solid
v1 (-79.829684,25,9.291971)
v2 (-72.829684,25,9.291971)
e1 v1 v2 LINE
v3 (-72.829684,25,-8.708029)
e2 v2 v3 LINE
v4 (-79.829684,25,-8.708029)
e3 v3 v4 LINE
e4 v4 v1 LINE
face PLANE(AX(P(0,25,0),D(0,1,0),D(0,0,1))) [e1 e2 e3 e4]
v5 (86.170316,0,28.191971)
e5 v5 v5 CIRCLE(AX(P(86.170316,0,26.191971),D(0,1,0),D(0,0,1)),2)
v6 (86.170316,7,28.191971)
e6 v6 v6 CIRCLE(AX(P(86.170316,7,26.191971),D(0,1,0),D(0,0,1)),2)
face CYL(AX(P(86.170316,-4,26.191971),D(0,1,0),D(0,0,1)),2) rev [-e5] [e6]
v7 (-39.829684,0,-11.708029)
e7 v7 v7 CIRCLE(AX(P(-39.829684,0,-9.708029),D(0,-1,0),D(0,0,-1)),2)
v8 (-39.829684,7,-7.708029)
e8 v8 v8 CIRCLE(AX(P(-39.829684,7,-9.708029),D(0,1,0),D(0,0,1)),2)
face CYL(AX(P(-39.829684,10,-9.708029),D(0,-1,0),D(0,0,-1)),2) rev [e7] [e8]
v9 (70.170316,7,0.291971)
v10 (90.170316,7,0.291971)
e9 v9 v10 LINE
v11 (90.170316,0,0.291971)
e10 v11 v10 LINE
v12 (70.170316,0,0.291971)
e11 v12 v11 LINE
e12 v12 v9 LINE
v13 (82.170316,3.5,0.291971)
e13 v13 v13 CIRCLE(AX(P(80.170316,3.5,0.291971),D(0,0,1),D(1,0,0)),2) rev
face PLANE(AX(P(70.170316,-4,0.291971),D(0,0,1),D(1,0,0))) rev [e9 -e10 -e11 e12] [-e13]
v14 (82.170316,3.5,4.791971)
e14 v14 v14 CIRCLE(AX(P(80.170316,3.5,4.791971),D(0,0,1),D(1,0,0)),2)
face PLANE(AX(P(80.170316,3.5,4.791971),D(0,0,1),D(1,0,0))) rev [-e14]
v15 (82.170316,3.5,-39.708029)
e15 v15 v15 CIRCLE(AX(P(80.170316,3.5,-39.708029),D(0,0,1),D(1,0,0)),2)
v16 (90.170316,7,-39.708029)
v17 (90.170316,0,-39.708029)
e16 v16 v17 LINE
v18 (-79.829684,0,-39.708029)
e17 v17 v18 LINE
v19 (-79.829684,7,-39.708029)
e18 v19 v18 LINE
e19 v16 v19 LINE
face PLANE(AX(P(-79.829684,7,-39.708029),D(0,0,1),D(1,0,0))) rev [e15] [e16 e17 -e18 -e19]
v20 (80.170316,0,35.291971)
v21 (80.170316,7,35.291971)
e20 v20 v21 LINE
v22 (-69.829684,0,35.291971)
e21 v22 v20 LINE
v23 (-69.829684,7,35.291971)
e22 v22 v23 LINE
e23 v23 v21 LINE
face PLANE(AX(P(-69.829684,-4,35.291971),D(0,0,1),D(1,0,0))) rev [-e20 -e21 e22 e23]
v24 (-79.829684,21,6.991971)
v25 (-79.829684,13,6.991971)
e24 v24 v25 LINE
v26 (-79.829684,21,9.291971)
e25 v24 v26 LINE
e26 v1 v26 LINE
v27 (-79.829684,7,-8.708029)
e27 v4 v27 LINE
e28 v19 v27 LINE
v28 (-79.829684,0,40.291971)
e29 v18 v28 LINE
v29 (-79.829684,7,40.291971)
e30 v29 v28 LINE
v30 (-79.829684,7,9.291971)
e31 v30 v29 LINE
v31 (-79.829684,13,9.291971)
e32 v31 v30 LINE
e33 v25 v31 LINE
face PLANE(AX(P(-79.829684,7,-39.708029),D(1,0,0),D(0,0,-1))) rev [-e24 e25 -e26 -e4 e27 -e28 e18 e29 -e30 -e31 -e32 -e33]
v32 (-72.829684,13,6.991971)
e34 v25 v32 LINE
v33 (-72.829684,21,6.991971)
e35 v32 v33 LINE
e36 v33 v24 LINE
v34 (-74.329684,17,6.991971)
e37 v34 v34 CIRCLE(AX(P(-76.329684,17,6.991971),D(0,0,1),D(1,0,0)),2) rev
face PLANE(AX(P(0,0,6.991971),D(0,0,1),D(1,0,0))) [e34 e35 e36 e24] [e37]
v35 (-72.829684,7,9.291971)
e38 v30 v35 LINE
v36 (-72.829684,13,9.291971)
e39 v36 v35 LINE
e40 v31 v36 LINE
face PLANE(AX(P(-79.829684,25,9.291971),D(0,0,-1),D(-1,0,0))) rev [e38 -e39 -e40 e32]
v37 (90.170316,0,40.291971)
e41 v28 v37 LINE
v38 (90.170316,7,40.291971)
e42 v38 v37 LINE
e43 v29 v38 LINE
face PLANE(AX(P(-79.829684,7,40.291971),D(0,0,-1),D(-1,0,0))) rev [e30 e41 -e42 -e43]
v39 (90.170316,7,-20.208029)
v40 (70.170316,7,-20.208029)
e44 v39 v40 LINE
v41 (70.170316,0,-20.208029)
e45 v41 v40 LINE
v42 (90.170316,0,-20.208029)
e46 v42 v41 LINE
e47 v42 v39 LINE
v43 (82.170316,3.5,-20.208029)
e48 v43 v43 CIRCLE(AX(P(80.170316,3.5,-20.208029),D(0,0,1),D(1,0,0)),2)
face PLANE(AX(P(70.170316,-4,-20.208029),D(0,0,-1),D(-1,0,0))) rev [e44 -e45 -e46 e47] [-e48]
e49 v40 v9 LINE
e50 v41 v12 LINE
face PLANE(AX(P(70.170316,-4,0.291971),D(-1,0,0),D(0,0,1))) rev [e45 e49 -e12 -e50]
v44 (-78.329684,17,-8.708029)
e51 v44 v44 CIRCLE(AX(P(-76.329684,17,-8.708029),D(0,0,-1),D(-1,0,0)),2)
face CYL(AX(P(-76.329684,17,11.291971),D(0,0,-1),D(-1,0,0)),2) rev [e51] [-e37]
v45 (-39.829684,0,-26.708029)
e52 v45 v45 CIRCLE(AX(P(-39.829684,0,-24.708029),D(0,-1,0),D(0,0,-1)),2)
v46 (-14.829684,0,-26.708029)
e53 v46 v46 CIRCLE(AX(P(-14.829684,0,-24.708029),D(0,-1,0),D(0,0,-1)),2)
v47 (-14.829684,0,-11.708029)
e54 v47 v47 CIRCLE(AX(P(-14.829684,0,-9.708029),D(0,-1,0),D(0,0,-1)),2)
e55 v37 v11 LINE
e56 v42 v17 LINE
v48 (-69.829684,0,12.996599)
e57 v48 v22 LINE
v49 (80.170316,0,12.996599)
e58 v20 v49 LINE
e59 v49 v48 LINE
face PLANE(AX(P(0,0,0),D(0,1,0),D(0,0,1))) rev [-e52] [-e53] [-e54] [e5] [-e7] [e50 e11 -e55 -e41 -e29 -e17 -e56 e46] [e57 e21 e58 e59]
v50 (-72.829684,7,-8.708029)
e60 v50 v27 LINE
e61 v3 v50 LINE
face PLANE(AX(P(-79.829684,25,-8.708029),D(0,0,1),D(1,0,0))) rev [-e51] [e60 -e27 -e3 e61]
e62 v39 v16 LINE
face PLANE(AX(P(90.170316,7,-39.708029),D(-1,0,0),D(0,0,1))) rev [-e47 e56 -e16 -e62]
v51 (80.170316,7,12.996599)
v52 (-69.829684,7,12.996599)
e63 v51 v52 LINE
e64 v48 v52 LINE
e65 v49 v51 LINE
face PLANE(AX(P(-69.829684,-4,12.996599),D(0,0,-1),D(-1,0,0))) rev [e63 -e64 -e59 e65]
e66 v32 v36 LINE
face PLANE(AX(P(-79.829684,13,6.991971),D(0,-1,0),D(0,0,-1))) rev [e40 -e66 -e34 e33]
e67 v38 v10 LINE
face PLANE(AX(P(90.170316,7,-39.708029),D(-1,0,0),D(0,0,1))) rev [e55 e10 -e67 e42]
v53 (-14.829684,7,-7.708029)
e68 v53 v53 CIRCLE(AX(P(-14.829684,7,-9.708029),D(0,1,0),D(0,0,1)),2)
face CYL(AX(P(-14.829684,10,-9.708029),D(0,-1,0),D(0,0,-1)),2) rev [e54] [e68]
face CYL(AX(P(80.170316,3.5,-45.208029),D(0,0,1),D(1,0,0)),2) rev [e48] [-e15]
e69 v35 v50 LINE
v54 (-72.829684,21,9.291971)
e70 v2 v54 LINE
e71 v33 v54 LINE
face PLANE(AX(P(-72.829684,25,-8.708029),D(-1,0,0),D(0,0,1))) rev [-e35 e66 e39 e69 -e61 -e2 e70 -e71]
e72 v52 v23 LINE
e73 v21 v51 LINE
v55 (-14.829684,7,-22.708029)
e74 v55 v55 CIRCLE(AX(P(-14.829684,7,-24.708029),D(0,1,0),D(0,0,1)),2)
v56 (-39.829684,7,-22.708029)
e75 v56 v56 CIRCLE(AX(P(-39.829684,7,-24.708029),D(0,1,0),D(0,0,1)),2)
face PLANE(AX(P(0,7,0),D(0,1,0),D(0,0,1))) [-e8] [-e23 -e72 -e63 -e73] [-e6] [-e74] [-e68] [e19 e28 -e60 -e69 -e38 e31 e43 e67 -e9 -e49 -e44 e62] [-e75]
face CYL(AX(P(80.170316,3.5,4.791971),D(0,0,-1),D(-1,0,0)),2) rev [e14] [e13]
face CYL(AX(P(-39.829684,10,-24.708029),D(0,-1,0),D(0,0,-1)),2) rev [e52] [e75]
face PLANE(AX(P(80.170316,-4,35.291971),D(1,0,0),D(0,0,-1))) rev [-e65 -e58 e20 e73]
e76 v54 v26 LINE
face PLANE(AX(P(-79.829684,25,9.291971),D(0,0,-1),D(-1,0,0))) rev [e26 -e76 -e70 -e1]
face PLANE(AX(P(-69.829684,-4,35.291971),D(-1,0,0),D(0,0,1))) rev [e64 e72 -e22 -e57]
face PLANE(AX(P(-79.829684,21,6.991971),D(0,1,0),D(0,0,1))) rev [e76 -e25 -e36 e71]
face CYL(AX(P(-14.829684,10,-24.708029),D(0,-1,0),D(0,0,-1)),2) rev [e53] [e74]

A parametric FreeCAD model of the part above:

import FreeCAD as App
import Part
import Sketcher

V = App.Vector

doc = App.newDocument("Part")
body = doc.addObject("PartDesign::Body", "Body")

sketch1 = body.newObject("Sketcher::SketchObject", "Sketch")
sketch1.AttachmentSupport = (doc.getObject("XZ_Plane"), [""])
sketch1.MapMode = "FlatFace"
sketch1.addGeometry([
    Part.LineSegment(V(-80, -40, 0), V(-80, 40, 0)),
    Part.LineSegment(V(-80, 40, 0), V(90, 40, 0)),
    Part.LineSegment(V(90, 40, 0), V(90, -40, 0)),
    Part.LineSegment(V(90, -40, 0), V(-80, -40, 0)),
], False)
sketch1.addConstraint([
    Sketcher.Constraint("Coincident", 0, 2, 1, 1),
    Sketcher.Constraint("Coincident", 1, 2, 2, 1),
    Sketcher.Constraint("Coincident", 2, 2, 3, 1),
    Sketcher.Constraint("Coincident", 3, 2, 0, 1),
    Sketcher.Constraint("Vertical", 0),
    Sketcher.Constraint("Horizontal", 1),
    Sketcher.Constraint("Vertical", 2),
    Sketcher.Constraint("Horizontal", 3),
    Sketcher.Constraint("DistanceX", 1, 1, 1, 2, 170.0),
    Sketcher.Constraint("DistanceY", 0, 1, 0, 2, 80.0),
    Sketcher.Constraint("DistanceY", -1, 1, 0, 2, 40.291971),
    Sketcher.Constraint("DistanceX", 0, 2, -1, 1, 79.829684),
])
pad1 = body.newObject("PartDesign::Pad", "Pad")
pad1.Profile = sketch1
pad1.Length = 7
pad1.Reversed = True

sketch2 = body.newObject("Sketcher::SketchObject", "Sketch001")
sketch2.AttachmentSupport = (doc.getObject("XZ_Plane"), [""])
sketch2.MapMode = "FlatFace"
sketch2.AttachmentOffset = App.Placement(V(0, 0, -7), App.Rotation())
sketch2.addGeometry([
    Part.LineSegment(V(-80, -9, 0), V(-80, 9, 0)),
    Part.LineSegment(V(-80, 9, 0), V(-73, 9, 0)),
    Part.LineSegment(V(-73, 9, 0), V(-73, -9, 0)),
    Part.LineSegment(V(-73, -9, 0), V(-80, -9, 0)),
], False)
sketch2.addConstraint([
    Sketcher.Constraint("Coincident", 0, 2, 1, 1),
    Sketcher.Constraint("Coincident", 1, 2, 2, 1),
    Sketcher.Constraint("Coincident", 2, 2, 3, 1),
    Sketcher.Constraint("Coincident", 3, 2, 0, 1),
    Sketcher.Constraint("Vertical", 0),
    Sketcher.Constraint("Horizontal", 1),
    Sketcher.Constraint("Vertical", 2),
    Sketcher.Constraint("Horizontal", 3),
    Sketcher.Constraint("DistanceX", 1, 1, 1, 2, 7.0),
    Sketcher.Constraint("DistanceY", 0, 1, 0, 2, 18.0),
    Sketcher.Constraint("DistanceY", -1, 1, 0, 2, 9.291971),
    Sketcher.Constraint("DistanceX", 0, 2, -1, 1, 79.829684),
])
pad2 = body.newObject("PartDesign::Pad", "Pad001")
pad2.Profile = sketch2
pad2.Length = 18
pad2.Reversed = True

sketch3 = body.newObject("Sketcher::SketchObject", "Sketch002")
sketch3.AttachmentSupport = (doc.getObject("XY_Plane"), [""])
sketch3.MapMode = "FlatFace"
sketch3.AttachmentOffset = App.Placement(V(0, 0, -8.708029), App.Rotation())
sketch3.addGeometry(Part.Circle(V(-76.3, 17, 0), V(0, 0, 1), 2), False)
sketch3.addConstraint([
    Sketcher.Constraint("Diameter", 0, 4.0),
    Sketcher.Constraint("DistanceY", -1, 1, 0, 3, 17.0),
    Sketcher.Constraint("DistanceX", 0, 3, -1, 1, 76.329684),
])
pocket1 = body.newObject("PartDesign::Pocket", "Pocket")
pocket1.Profile = sketch3
pocket1.Length = 20
pocket1.Reversed = True

sketch4 = body.newObject("Sketcher::SketchObject", "Sketch003")
sketch4.AttachmentSupport = (doc.getObject("XY_Plane"), [""])
sketch4.MapMode = "FlatFace"
sketch4.AttachmentOffset = App.Placement(V(0, 0, 9.291971), App.Rotation())
sketch4.addGeometry([
    Part.LineSegment(V(-80, 21, 0), V(-80, 13, 0)),
    Part.LineSegment(V(-80, 13, 0), V(-73, 13, 0)),
    Part.LineSegment(V(-73, 13, 0), V(-73, 21, 0)),
    Part.LineSegment(V(-73, 21, 0), V(-80, 21, 0)),
], False)
sketch4.addConstraint([
    Sketcher.Constraint("Coincident", 0, 2, 1, 1),
    Sketcher.Constraint("Coincident", 1, 2, 2, 1),
    Sketcher.Constraint("Coincident", 2, 2, 3, 1),
    Sketcher.Constraint("Coincident", 3, 2, 0, 1),
    Sketcher.Constraint("Vertical", 0),
    Sketcher.Constraint("Horizontal", 1),
    Sketcher.Constraint("Vertical", 2),
    Sketcher.Constraint("Horizontal", 3),
    Sketcher.Constraint("DistanceX", 1, 1, 1, 2, 7.0),
    Sketcher.Constraint("DistanceY", 0, 2, 0, 1, 8.0),
    Sketcher.Constraint("DistanceY", -1, 1, 0, 2, 13.0),
    Sketcher.Constraint("DistanceX", 0, 2, -1, 1, 79.829684),
])
pocket2 = body.newObject("PartDesign::Pocket", "Pocket001")
pocket2.Profile = sketch4
pocket2.Length = 2.3

sketch5 = body.newObject("Sketcher::SketchObject", "Sketch004")
sketch5.AttachmentSupport = (doc.getObject("XZ_Plane"), [""])
sketch5.MapMode = "FlatFace"
sketch5.AttachmentOffset = App.Placement(V(0, 0, -7), App.Rotation())
sketch5.addGeometry([
    Part.LineSegment(V(-70, 13, 0), V(-70, 35, 0)),
    Part.LineSegment(V(-70, 35, 0), V(80, 35, 0)),
    Part.LineSegment(V(80, 35, 0), V(80, 13, 0)),
    Part.LineSegment(V(80, 13, 0), V(-70, 13, 0)),
], False)
sketch5.addConstraint([
    Sketcher.Constraint("Coincident", 0, 2, 1, 1),
    Sketcher.Constraint("Coincident", 1, 2, 2, 1),
    Sketcher.Constraint("Coincident", 2, 2, 3, 1),
    Sketcher.Constraint("Coincident", 3, 2, 0, 1),
    Sketcher.Constraint("Vertical", 0),
    Sketcher.Constraint("Horizontal", 1),
    Sketcher.Constraint("Vertical", 2),
    Sketcher.Constraint("Horizontal", 3),
    Sketcher.Constraint("DistanceX", 1, 1, 1, 2, 150.0),
    Sketcher.Constraint("DistanceY", 0, 1, 0, 2, 22.295371),
    Sketcher.Constraint("DistanceY", -1, 1, 2, 2, 12.996599),
    Sketcher.Constraint("DistanceX", 0, 2, -1, 1, 69.829684),
])
pocket3 = body.newObject("PartDesign::Pocket", "Pocket002")
pocket3.Profile = sketch5
pocket3.Length = 11
pocket3.Reversed = True

sketch6 = body.newObject("Sketcher::SketchObject", "Sketch005")
sketch6.AttachmentSupport = (doc.getObject("XZ_Plane"), [""])
sketch6.MapMode = "FlatFace"
sketch6.AttachmentOffset = App.Placement(V(0, 0, -7), App.Rotation())
sketch6.addGeometry([
    Part.Circle(V(86.2, 26.2, 0), V(0, 0, 1), 2),
    Part.LineSegment(V(70.2, -20.2, 0), V(70.2, 0.3, 0)),
    Part.LineSegment(V(70.2, 0.3, 0), V(90.2, 0.3, 0)),
    Part.LineSegment(V(90.2, 0.3, 0), V(90.2, -20.2, 0)),
    Part.LineSegment(V(90.2, -20.2, 0), V(70.2, -20.2, 0)),
], False)
sketch6.addConstraint([
    Sketcher.Constraint("Coincident", 1, 2, 2, 1),
    Sketcher.Constraint("Coincident", 2, 2, 3, 1),
    Sketcher.Constraint("Coincident", 3, 2, 4, 1),
    Sketcher.Constraint("Coincident", 4, 2, 1, 1),
    Sketcher.Constraint("Vertical", 1),
    Sketcher.Constraint("Horizontal", 2),
    Sketcher.Constraint("Vertical", 3),
    Sketcher.Constraint("Horizontal", 4),
    Sketcher.Constraint("Diameter", 0, 4.0),
    Sketcher.Constraint("DistanceX", 2, 1, 2, 2, 20.0),
    Sketcher.Constraint("DistanceY", 1, 1, 1, 2, 20.5),
    Sketcher.Constraint("DistanceX", 1, 2, 0, 3, 16.0),
    Sketcher.Constraint("DistanceY", 1, 2, 0, 3, 25.9),
    Sketcher.Constraint("DistanceY", -1, 1, 0, 3, 26.191971),
    Sketcher.Constraint("DistanceX", -1, 1, 0, 3, 86.170316),
])
pocket4 = body.newObject("PartDesign::Pocket", "Pocket003")
pocket4.Profile = sketch6
pocket4.Length = 11
pocket4.Reversed = True

sketch7 = body.newObject("Sketcher::SketchObject", "Sketch006")
sketch7.AttachmentSupport = (doc.getObject("XY_Plane"), [""])
sketch7.MapMode = "FlatFace"
sketch7.AttachmentOffset = App.Placement(V(0, 0, -20.208029), App.Rotation())
sketch7.addGeometry(Part.Circle(V(80.2, 3.5, 0), V(0, 0, 1), 2), False)
sketch7.addConstraint([
    Sketcher.Constraint("Diameter", 0, 4.0),
    Sketcher.Constraint("DistanceY", -1, 1, 0, 3, 3.5),
    Sketcher.Constraint("DistanceX", -1, 1, 0, 3, 80.170316),
])
pocket5 = body.newObject("PartDesign::Pocket", "Pocket004")
pocket5.Profile = sketch7
pocket5.Length = 25

sketch8 = body.newObject("Sketcher::SketchObject", "Sketch007")
sketch8.AttachmentSupport = (doc.getObject("XY_Plane"), [""])
sketch8.MapMode = "FlatFace"
sketch8.AttachmentOffset = App.Placement(V(0, 0, -20.208029), App.Rotation())
sketch8.addGeometry(Part.Circle(V(80.2, 3.5, 0), V(0, 0, 1), 2), False)
sketch8.addConstraint([
    Sketcher.Constraint("Diameter", 0, 4.0),
    Sketcher.Constraint("DistanceY", -1, 1, 0, 3, 3.5),
    Sketcher.Constraint("DistanceX", -1, 1, 0, 3, 80.170316),
])
pocket6 = body.newObject("PartDesign::Pocket", "Pocket005")
pocket6.Profile = sketch8
pocket6.Length = 25
pocket6.Reversed = True

sketch9 = body.newObject("Sketcher::SketchObject", "Sketch008")
sketch9.AttachmentSupport = (doc.getObject("XZ_Plane"), [""])
sketch9.MapMode = "FlatFace"
sketch9.addGeometry([
    Part.Circle(V(-39.8, -9.7, 0), V(0, 0, 1), 2),
    Part.Circle(V(-39.8, -24.7, 0), V(0, 0, 1), 2),
    Part.Circle(V(-14.8, -24.7, 0), V(0, 0, 1), 2),
    Part.Circle(V(-14.8, -9.7, 0), V(0, 0, 1), 2),
], False)
sketch9.addConstraint([
    Sketcher.Constraint("Equal", 0, 1),
    Sketcher.Constraint("Equal", 1, 2),
    Sketcher.Constraint("Equal", 2, 3),
    Sketcher.Constraint("Horizontal", 1, 3, 2, 3),
    Sketcher.Constraint("Horizontal", 0, 3, 3, 3),
    Sketcher.Constraint("Vertical", 0, 3, 1, 3),
    Sketcher.Constraint("Vertical", 2, 3, 3, 3),
    Sketcher.Constraint("Diameter", 0, 4.0),
    Sketcher.Constraint("DistanceY", 1, 3, 0, 3, 15.0),
    Sketcher.Constraint("DistanceX", 1, 3, 2, 3, 25.0),
    Sketcher.Constraint("DistanceY", 0, 3, -1, 1, 9.708029),
    Sketcher.Constraint("DistanceX", 0, 3, -1, 1, 39.829684),
])
pocket7 = body.newObject("PartDesign::Pocket", "Pocket006")
pocket7.Profile = sketch9
pocket7.Length = 10

doc.recompute()
